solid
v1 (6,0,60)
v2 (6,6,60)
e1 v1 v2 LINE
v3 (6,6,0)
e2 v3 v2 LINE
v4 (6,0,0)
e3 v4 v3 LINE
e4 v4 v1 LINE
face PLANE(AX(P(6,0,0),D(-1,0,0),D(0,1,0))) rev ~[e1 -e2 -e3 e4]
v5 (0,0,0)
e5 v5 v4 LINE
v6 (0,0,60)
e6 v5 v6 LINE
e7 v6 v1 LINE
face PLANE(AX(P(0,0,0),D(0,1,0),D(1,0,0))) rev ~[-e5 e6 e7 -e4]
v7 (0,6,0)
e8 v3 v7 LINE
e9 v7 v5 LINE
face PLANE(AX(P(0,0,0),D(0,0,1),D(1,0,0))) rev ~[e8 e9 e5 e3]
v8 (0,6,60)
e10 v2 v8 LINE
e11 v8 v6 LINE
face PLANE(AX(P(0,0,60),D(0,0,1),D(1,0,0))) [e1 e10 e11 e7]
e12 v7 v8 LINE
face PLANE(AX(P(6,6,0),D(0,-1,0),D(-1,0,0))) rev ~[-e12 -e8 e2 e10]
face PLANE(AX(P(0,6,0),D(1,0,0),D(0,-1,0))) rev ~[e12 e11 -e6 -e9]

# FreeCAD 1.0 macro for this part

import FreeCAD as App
import Part
import Sketcher
from FreeCAD import Vector

doc = App.newDocument("Part")
body = doc.addObject("PartDesign::Body", "Body")

# Sketch on XY plane
sketch1 = body.newObject("Sketcher::SketchObject", "Sketch")
sketch1.AttachmentSupport = (doc.getObject("XY_Plane"), [""])
sketch1.MapMode = "FlatFace"
sketch1.addGeometry([
    Part.LineSegment(Vector(0, 6, 0), Vector(0, 0, 0)),
    Part.LineSegment(Vector(0, 0, 0), Vector(6, 0, 0)),
    Part.LineSegment(Vector(6, 0, 0), Vector(6, 6, 0)),
    Part.LineSegment(Vector(6, 6, 0), Vector(0, 6, 0)),
], False)
sketch1.addConstraint([
    Sketcher.Constraint("Coincident", 0, 2, 1, 1),
    Sketcher.Constraint("Coincident", 1, 2, 2, 1),
    Sketcher.Constraint("Coincident", 2, 2, 3, 1),
    Sketcher.Constraint("Coincident", 3, 2, 0, 1),
    Sketcher.Constraint("Vertical", 0),
    Sketcher.Constraint("Horizontal", 1),
    Sketcher.Constraint("Vertical", 2),
    Sketcher.Constraint("Horizontal", 3),
    Sketcher.Constraint("Coincident", 0, 2, -1, 1),
    Sketcher.Constraint("Equal", 3, 0),
    Sketcher.Constraint("DistanceX", 1, 1, 1, 2, 6.0),
])
pad1 = body.newObject("PartDesign::Pad", "Pad")
pad1.Profile = sketch1
pad1.Length = 60

doc.recompute()
